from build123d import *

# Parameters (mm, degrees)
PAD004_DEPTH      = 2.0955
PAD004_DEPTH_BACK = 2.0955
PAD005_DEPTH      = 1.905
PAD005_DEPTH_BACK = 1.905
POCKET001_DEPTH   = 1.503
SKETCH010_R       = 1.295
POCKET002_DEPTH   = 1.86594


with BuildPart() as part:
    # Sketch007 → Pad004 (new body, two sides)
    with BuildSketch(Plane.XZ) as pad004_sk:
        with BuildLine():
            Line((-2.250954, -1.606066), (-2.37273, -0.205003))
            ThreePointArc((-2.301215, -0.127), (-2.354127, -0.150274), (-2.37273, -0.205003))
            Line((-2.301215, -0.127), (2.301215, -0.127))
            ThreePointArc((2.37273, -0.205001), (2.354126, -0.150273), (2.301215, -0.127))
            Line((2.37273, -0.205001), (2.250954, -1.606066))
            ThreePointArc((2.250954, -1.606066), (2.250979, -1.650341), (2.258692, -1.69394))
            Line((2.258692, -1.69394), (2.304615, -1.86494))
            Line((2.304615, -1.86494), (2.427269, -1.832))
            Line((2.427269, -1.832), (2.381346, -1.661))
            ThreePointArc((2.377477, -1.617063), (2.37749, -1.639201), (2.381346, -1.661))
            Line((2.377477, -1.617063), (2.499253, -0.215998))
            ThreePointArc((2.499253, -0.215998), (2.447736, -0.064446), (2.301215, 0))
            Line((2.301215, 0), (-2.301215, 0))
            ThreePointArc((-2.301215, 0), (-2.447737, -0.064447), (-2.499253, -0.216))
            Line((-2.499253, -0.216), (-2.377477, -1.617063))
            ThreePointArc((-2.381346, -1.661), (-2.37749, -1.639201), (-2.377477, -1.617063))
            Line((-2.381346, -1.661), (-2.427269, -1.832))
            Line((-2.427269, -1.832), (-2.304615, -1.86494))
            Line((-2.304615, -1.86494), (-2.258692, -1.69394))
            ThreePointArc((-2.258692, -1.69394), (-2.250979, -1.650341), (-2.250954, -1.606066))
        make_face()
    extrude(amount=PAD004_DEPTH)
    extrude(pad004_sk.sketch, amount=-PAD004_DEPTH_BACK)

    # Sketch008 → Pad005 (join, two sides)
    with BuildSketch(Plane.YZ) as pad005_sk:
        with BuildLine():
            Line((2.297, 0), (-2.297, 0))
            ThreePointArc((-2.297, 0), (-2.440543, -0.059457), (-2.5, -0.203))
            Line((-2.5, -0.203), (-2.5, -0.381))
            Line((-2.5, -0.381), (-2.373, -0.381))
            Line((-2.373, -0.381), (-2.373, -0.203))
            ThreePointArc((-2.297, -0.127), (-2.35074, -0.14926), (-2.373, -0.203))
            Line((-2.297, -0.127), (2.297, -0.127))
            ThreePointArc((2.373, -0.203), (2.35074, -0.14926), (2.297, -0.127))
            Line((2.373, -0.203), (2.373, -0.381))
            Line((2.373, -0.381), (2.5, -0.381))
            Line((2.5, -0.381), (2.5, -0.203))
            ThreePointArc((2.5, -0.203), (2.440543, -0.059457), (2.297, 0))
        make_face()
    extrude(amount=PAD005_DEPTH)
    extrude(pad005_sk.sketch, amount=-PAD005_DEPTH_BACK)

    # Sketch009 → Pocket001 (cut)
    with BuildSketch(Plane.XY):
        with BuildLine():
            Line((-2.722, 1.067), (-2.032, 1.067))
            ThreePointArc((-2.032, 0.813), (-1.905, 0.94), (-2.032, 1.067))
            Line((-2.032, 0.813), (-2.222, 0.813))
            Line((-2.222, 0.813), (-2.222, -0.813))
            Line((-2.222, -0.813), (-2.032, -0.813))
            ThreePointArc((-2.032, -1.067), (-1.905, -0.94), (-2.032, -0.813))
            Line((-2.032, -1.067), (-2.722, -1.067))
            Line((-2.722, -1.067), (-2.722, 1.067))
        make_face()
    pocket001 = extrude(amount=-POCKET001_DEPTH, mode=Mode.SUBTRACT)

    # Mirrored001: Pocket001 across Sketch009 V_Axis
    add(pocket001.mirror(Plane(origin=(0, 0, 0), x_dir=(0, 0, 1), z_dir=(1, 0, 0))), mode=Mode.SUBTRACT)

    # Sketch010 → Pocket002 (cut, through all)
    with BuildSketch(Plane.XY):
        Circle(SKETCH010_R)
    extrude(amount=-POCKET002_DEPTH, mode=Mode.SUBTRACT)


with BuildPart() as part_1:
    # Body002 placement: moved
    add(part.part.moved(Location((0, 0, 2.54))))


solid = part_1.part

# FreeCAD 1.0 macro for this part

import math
import FreeCAD as App
import Part
import Sketcher
from FreeCAD import Vector
Q = App.Units.Quantity

doc = App.newDocument("Part")
params = doc.addObject("Spreadsheet::Sheet", "Params")
for row, (alias, value) in enumerate([
    ("sketch1_radius", "0.0100002 in"),
    ("sketch1_radius2", "0.0100002 in"),
    ("sketch1_length", "0.005 in"),
    ("sketch1_length2", "0.005 in"),
    ("pad1_length", "0.0825 in"),
    ("pad1_length2", "0.0825 in"),
    ("sketch2_width", "0.005 in"),
    ("pad2_length", "0.075 in"),
    ("pad2_length2", "0.075 in"),
    ("sketch3_radius", "0.005 in"),
    ("pocket1_length", "1.503 mm"),
], start=1):
    params.set(f"A{row}", alias)
    params.set(f"B{row}", "=" + value)
    params.setAlias(f"B{row}", alias)

body = doc.addObject("PartDesign::Body", "Body")

# Sketch on XZ plane
sketch1 = doc.addObject("Sketcher::SketchObject", "Sketch")
body.addObject(sketch1)
sketch1.AttachmentSupport = (doc.XZ_Plane, [""])
sketch1.MapMode = "FlatFace"
sketch1.addGeometry(Part.LineSegment(Vector(-2.250954, -1.606066, 0), Vector(-2.37273, -0.205003, 0)), False)
sketch1.addGeometry(Part.ArcOfCircle(Part.Circle(Vector(-2.301214, -0.198786, 0), Vector(0, 0, 1), 0.071786), math.radians(90.001026), math.radians(184.968302)), False)
sketch1.addGeometry(Part.LineSegment(Vector(-2.301215, -0.127, 0), Vector(2.301215, -0.127, 0)), False)
sketch1.addGeometry(Part.ArcOfCircle(Part.Circle(Vector(2.301214, -0.198786, 0), Vector(0, 0, 1), 0.071786), math.radians(-4.966821), math.radians(89.998957)), False)
sketch1.addGeometry(Part.LineSegment(Vector(2.37273, -0.205001, 0), Vector(2.250954, -1.606066, 0)), False)
sketch1.addGeometry(Part.ArcOfCircle(Part.Circle(Vector(2.504004, -1.628061, 0), Vector(0, 0, 1), 0.254004), math.radians(175.03245), math.radians(195.032281)), False)
sketch1.addGeometry(Part.LineSegment(Vector(2.258692, -1.69394, 0), Vector(2.304615, -1.86494, 0)), False)
sketch1.addGeometry(Part.LineSegment(Vector(2.304615, -1.86494, 0), Vector(2.427269, -1.832, 0)), False)
sketch1.addGeometry(Part.LineSegment(Vector(2.427269, -1.832, 0), Vector(2.381346, -1.661, 0)), False)
sketch1.addGeometry(Part.ArcOfCircle(Part.Circle(Vector(2.504032, -1.628058, 0), Vector(0, 0, 1), 0.127032), math.radians(175.034792), math.radians(195.029939)), False)
sketch1.addGeometry(Part.LineSegment(Vector(2.377477, -1.617063, 0), Vector(2.499253, -0.215998, 0)), False)
sketch1.addGeometry(Part.ArcOfCircle(Part.Circle(Vector(2.301215, -0.198785, 0), Vector(0, 0, 1), 0.198785), math.radians(-4.967518), math.radians(89.999894)), False)
sketch1.addGeometry(Part.LineSegment(Vector(2.301215, 0, 0), Vector(-2.301215, 0, 0)), False)
sketch1.addGeometry(Part.ArcOfCircle(Part.Circle(Vector(-2.301215, -0.198785, 0), Vector(0, 0, 1), 0.198785), math.radians(90.0001), math.radians(184.968052)), False)
sketch1.addGeometry(Part.LineSegment(Vector(-2.499253, -0.216, 0), Vector(-2.377477, -1.617063, 0)), False)
sketch1.addGeometry(Part.ArcOfCircle(Part.Circle(Vector(-2.504032, -1.628058, 0), Vector(0, 0, 1), 0.127032), math.radians(-15.029939), math.radians(4.965208)), False)
sketch1.addGeometry(Part.LineSegment(Vector(-2.381346, -1.661, 0), Vector(-2.427269, -1.832, 0)), False)
sketch1.addGeometry(Part.LineSegment(Vector(-2.427269, -1.832, 0), Vector(-2.304615, -1.86494, 0)), False)
sketch1.addGeometry(Part.LineSegment(Vector(-2.304615, -1.86494, 0), Vector(-2.258692, -1.69394, 0)), False)
sketch1.addGeometry(Part.ArcOfCircle(Part.Circle(Vector(-2.504004, -1.628061, 0), Vector(0, 0, 1), 0.254004), math.radians(-15.032281), math.radians(4.96755)), False)
sketch1.addConstraint(Sketcher.Constraint("Coincident", 0, 2, 1, 2))
sketch1.addConstraint(Sketcher.Constraint("Coincident", 1, 1, 2, 1))
sketch1.addConstraint(Sketcher.Constraint("Coincident", 2, 2, 3, 2))
sketch1.addConstraint(Sketcher.Constraint("Coincident", 3, 1, 4, 1))
sketch1.addConstraint(Sketcher.Constraint("Coincident", 4, 2, 5, 1))
sketch1.addConstraint(Sketcher.Constraint("Coincident", 5, 2, 6, 1))
sketch1.addConstraint(Sketcher.Constraint("Coincident", 6, 2, 7, 1))
sketch1.addConstraint(Sketcher.Constraint("Coincident", 7, 2, 8, 1))
sketch1.addConstraint(Sketcher.Constraint("Coincident", 8, 2, 9, 2))
sketch1.addConstraint(Sketcher.Constraint("Coincident", 9, 1, 10, 1))
sketch1.addConstraint(Sketcher.Constraint("Coincident", 10, 2, 11, 1))
sketch1.addConstraint(Sketcher.Constraint("Coincident", 11, 2, 12, 1))
sketch1.addConstraint(Sketcher.Constraint("Coincident", 12, 2, 13, 1))
sketch1.addConstraint(Sketcher.Constraint("Coincident", 13, 2, 14, 1))
sketch1.addConstraint(Sketcher.Constraint("Coincident", 14, 2, 15, 2))
sketch1.addConstraint(Sketcher.Constraint("Coincident", 15, 1, 16, 1))
sketch1.addConstraint(Sketcher.Constraint("Coincident", 16, 2, 17, 1))
sketch1.addConstraint(Sketcher.Constraint("Coincident", 17, 2, 18, 1))
sketch1.addConstraint(Sketcher.Constraint("Coincident", 18, 2, 19, 1))
sketch1.addConstraint(Sketcher.Constraint("Coincident", 19, 2, 0, 1))
sketch1.addConstraint(Sketcher.Constraint("Horizontal", 2))
sketch1.addConstraint(Sketcher.Constraint("Horizontal", 12))
sketch1.addConstraint(Sketcher.Constraint("Coincident", 11, 3, 3, 3))
sketch1.addConstraint(Sketcher.Constraint("Coincident", 13, 3, 1, 3))
sketch1.addConstraint(Sketcher.Constraint("PointOnObject", 11, 2, -1))
sketch1.addConstraint(Sketcher.Constraint("Radius", 5, Q("0.0100002 in")))
sketch1.addConstraint(Sketcher.Constraint("Radius", 19, Q("0.0100002 in")))
sketch1.addConstraint(Sketcher.Constraint("Distance", 7, Q("0.005 in")))
sketch1.addConstraint(Sketcher.Constraint("Distance", 17, Q("0.005 in")))
sketch1.addConstraint(Sketcher.Constraint("DistanceY", 1, 1, -1, 1, Q("0.005 in")))
sketch1.addConstraint(Sketcher.Constraint("Radius", 9, Q("0.127032 mm")))
sketch1.addConstraint(Sketcher.Constraint("Radius", 15, Q("0.127032 mm")))
sketch1.addConstraint(Sketcher.Constraint("Radius", 1, Q("0.071786 mm")))
sketch1.addConstraint(Sketcher.Constraint("Radius", 3, Q("0.071786 mm")))
sketch1.addConstraint(Sketcher.Constraint("DistanceX", 2, 1, 2, 2, Q("4.60243 mm")))
sketch1.addConstraint(Sketcher.Constraint("DistanceX", 12, 2, 12, 1, Q("4.60243 mm")))
sketch1.addConstraint(Sketcher.Constraint("DistanceY", 3, 1, -1, 1, Q("0.205001 mm")))
sketch1.addConstraint(Sketcher.Constraint("DistanceY", 7, 2, -1, 1, Q("1.832 mm")))
sketch1.addConstraint(Sketcher.Constraint("DistanceY", 8, 2, -1, 1, Q("1.661 mm")))
sketch1.addConstraint(Sketcher.Constraint("DistanceY", 13, 2, -1, 1, Q("0.216 mm")))
sketch1.addConstraint(Sketcher.Constraint("DistanceY", 15, 1, -1, 1, Q("1.661 mm")))
sketch1.addConstraint(Sketcher.Constraint("DistanceY", 16, 2, -1, 1, Q("1.832 mm")))
sketch1.addConstraint(Sketcher.Constraint("DistanceX", 15, 3, 0, 2, Q("0.131302 mm")))
sketch1.addConstraint(Sketcher.Constraint("DistanceX", 3, 1, 9, 3, Q("0.131302 mm")))
sketch1.addConstraint(Sketcher.Constraint("DistanceY", 6, 2, 5, 2, Q("0.171 mm")))
sketch1.addConstraint(Sketcher.Constraint("DistanceY", 17, 2, 18, 2, Q("0.171 mm")))
sketch1.addConstraint(Sketcher.Constraint("Distance", 6, Q("0.177059 mm")))
sketch1.addConstraint(Sketcher.Constraint("Distance", 8, Q("0.177059 mm")))
sketch1.addConstraint(Sketcher.Constraint("Distance", 16, Q("0.177059 mm")))
sketch1.addConstraint(Sketcher.Constraint("Distance", 18, Q("0.177059 mm")))
sketch1.addConstraint(Sketcher.Constraint("DistanceY", 5, 3, -1, 1, Q("1.628061 mm")))
sketch1.addConstraint(Sketcher.Constraint("DistanceX", -1, 1, 9, 3, Q("2.504032 mm")))
sketch1.addConstraint(Sketcher.Constraint("DistanceX", 15, 3, -1, 1, Q("2.504032 mm")))
sketch1.addConstraint(Sketcher.Constraint("DistanceY", 19, 3, -1, 1, Q("1.628061 mm")))
sketch1.addConstraint(Sketcher.Constraint("DistanceY", 5, 2, -1, 1, Q("1.69394 mm")))
sketch1.addConstraint(Sketcher.Constraint("DistanceX", -1, 1, 7, 2, Q("2.427269 mm")))
sketch1.addConstraint(Sketcher.Constraint("DistanceX", 16, 2, -1, 1, Q("2.427269 mm")))
sketch1.addConstraint(Sketcher.Constraint("DistanceY", 17, 2, -1, 1, Q("1.86494 mm")))
sketch1.addConstraint(Sketcher.Constraint("DistanceX", 1, 3, 11, 3, Q("4.602428 mm")))
sketch1.addConstraint(Sketcher.Constraint("DistanceX", 19, 3, 1, 1, Q("0.202789 mm")))
sketch1.addConstraint(Sketcher.Constraint("DistanceX", 4, 2, 5, 3, Q("0.25305 mm")))
sketch1.addConstraint(Sketcher.Constraint("DistanceX", 9, 1, 8, 2, Q("0.003869 mm")))
sketch1.addConstraint(Sketcher.Constraint("DistanceX", 11, 3, 10, 2, Q("0.198038 mm")))
sketch1.addConstraint(Sketcher.Constraint("DistanceX", 19, 3, 12, 2, Q("0.202789 mm")))
sketch1.addConstraint(Sketcher.Constraint("DistanceY", 14, 2, 0, 2, Q("1.41206 mm")))
sketch1.addConstraint(Sketcher.Constraint("DistanceX", 15, 1, 19, 2, Q("0.130392 mm")))
sketch1.setExpression("Constraints[25]", "Params.sketch1_radius")
sketch1.setExpression("Constraints[26]", "Params.sketch1_radius2")
sketch1.setExpression("Constraints[27]", "Params.sketch1_length")
sketch1.setExpression("Constraints[28]", "Params.sketch1_length2")
pad1 = doc.addObject("PartDesign::Pad", "Pad")
body.addObject(pad1)
pad1.Profile = sketch1
pad1.Type = "TwoLengths"
pad1.setExpression("Length", "Params.pad1_length")
pad1.setExpression("Length2", "Params.pad1_length2")

# Sketch on YZ plane
sketch2 = doc.addObject("Sketcher::SketchObject", "Sketch001")
body.addObject(sketch2)
sketch2.AttachmentSupport = (doc.YZ_Plane, [""])
sketch2.MapMode = "FlatFace"
sketch2.addGeometry(Part.LineSegment(Vector(2.297, 0, 0), Vector(-2.297, 0, 0)), False)
sketch2.addGeometry(Part.ArcOfCircle(Part.Circle(Vector(-2.297001, -0.202999, 0), Vector(0, 0, 1), 0.202999), math.radians(89.999688), math.radians(180.000312)), False)
sketch2.addGeometry(Part.LineSegment(Vector(-2.5, -0.203, 0), Vector(-2.5, -0.381, 0)), False)
sketch2.addGeometry(Part.LineSegment(Vector(-2.5, -0.381, 0), Vector(-2.373, -0.381, 0)), False)
sketch2.addGeometry(Part.LineSegment(Vector(-2.373, -0.381, 0), Vector(-2.373, -0.203, 0)), False)
sketch2.addGeometry(Part.ArcOfCircle(Part.Circle(Vector(-2.297, -0.203, 0), Vector(0, 0, 1), 0.076), math.radians(90.000297), math.radians(179.999703)), False)
sketch2.addGeometry(Part.LineSegment(Vector(-2.297, -0.127, 0), Vector(2.297, -0.127, 0)), False)
sketch2.addGeometry(Part.ArcOfCircle(Part.Circle(Vector(2.297, -0.203, 0), Vector(0, 0, 1), 0.076), math.radians(0.000297), math.radians(89.999703)), False)
sketch2.addGeometry(Part.LineSegment(Vector(2.373, -0.203, 0), Vector(2.373, -0.381, 0)), False)
sketch2.addGeometry(Part.LineSegment(Vector(2.373, -0.381, 0), Vector(2.5, -0.381, 0)), False)
sketch2.addGeometry(Part.LineSegment(Vector(2.5, -0.381, 0), Vector(2.5, -0.203, 0)), False)
sketch2.addGeometry(Part.ArcOfCircle(Part.Circle(Vector(2.297001, -0.202999, 0), Vector(0, 0, 1), 0.202999), math.radians(-0.000312), math.radians(90.000312)), False)
sketch2.addConstraint(Sketcher.Constraint("Coincident", 0, 2, 1, 1))
sketch2.addConstraint(Sketcher.Constraint("Coincident", 1, 2, 2, 1))
sketch2.addConstraint(Sketcher.Constraint("Coincident", 2, 2, 3, 1))
sketch2.addConstraint(Sketcher.Constraint("Coincident", 3, 2, 4, 1))
sketch2.addConstraint(Sketcher.Constraint("Coincident", 4, 2, 5, 2))
sketch2.addConstraint(Sketcher.Constraint("Coincident", 5, 1, 6, 1))
sketch2.addConstraint(Sketcher.Constraint("Coincident", 6, 2, 7, 2))
sketch2.addConstraint(Sketcher.Constraint("Coincident", 7, 1, 8, 1))
sketch2.addConstraint(Sketcher.Constraint("Coincident", 8, 2, 9, 1))
sketch2.addConstraint(Sketcher.Constraint("Coincident", 9, 2, 10, 1))
sketch2.addConstraint(Sketcher.Constraint("Coincident", 10, 2, 11, 1))
sketch2.addConstraint(Sketcher.Constraint("Coincident", 11, 2, 0, 1))
sketch2.addConstraint(Sketcher.Constraint("Horizontal", 0))
sketch2.addConstraint(Sketcher.Constraint("Vertical", 2))
sketch2.addConstraint(Sketcher.Constraint("Horizontal", 3))
sketch2.addConstraint(Sketcher.Constraint("Vertical", 4))
sketch2.addConstraint(Sketcher.Constraint("Horizontal", 6))
sketch2.addConstraint(Sketcher.Constraint("Vertical", 8))
sketch2.addConstraint(Sketcher.Constraint("Horizontal", 9))
sketch2.addConstraint(Sketcher.Constraint("Vertical", 10))
sketch2.addConstraint(Sketcher.Constraint("Coincident", 5, 3, 1, 3))
sketch2.addConstraint(Sketcher.Constraint("Coincident", 11, 3, 7, 3))
sketch2.addConstraint(Sketcher.Constraint("Equal", 5, 7))
sketch2.addConstraint(Sketcher.Constraint("Symmetric", 0, 2, 11, 2, -1, 1))
sketch2.addConstraint(Sketcher.Constraint("Symmetric", 4, 2, 7, 1, -2))
sketch2.addConstraint(Sketcher.Constraint("Horizontal", 11, 3, 1, 2))
sketch2.addConstraint(Sketcher.Constraint("Horizontal", 1, 2, 4, 2))
sketch2.addConstraint(Sketcher.Constraint("Horizontal", 3, 2, 8, 2))
sketch2.addConstraint(Sketcher.Constraint("Horizontal", 7, 1, 10, 2))
sketch2.addConstraint(Sketcher.Constraint("Vertical", 5, 3, 0, 2))
sketch2.addConstraint(Sketcher.Constraint("Vertical", 0, 2, 5, 1))
sketch2.addConstraint(Sketcher.Constraint("Vertical", 11, 3, 6, 2))
sketch2.addConstraint(Sketcher.Constraint("DistanceX", 3, 1, 3, 2, Q("0.005 in")))
sketch2.addConstraint(Sketcher.Constraint("Radius", 1, Q("0.202999 mm")))
sketch2.addConstraint(Sketcher.Constraint("DistanceY", 8, 2, 6, 2, Q("0.01 in")))
sketch2.addConstraint(Sketcher.Constraint("DistanceX", 0, 2, 0, 1, Q("4.594 mm")))
sketch2.setExpression("Constraints[32]", "Params.sketch2_width")
pad2 = doc.addObject("PartDesign::Pad", "Pad001")
body.addObject(pad2)
pad2.Profile = sketch2
pad2.Type = "TwoLengths"
pad2.setExpression("Length", "Params.pad2_length")
pad2.setExpression("Length2", "Params.pad2_length2")

# Sketch on XY plane
sketch3 = doc.addObject("Sketcher::SketchObject", "Sketch002")
body.addObject(sketch3)
sketch3.AttachmentSupport = (doc.XY_Plane, [""])
sketch3.MapMode = "FlatFace"
sketch3.addGeometry(Part.LineSegment(Vector(-2.032, 1.067, 0), Vector(-2.722, 1.067, 0)), False)
sketch3.addGeometry(Part.LineSegment(Vector(-2.722, 1.067, 0), Vector(-2.722, -1.067, 0)), False)
sketch3.addGeometry(Part.LineSegment(Vector(-2.722, -1.067, 0), Vector(-2.032, -1.067, 0)), False)
sketch3.addGeometry(Part.ArcOfCircle(Part.Circle(Vector(-2.032, -0.94, 0), Vector(0, 0, 1), 0.127), math.radians(-90), math.radians(90)), False)
sketch3.addGeometry(Part.LineSegment(Vector(-2.032, -0.813, 0), Vector(-2.222, -0.813, 0)), False)
sketch3.addGeometry(Part.LineSegment(Vector(-2.222, -0.813, 0), Vector(-2.222, 0.813, 0)), False)
sketch3.addGeometry(Part.LineSegment(Vector(-2.222, 0.813, 0), Vector(-2.032, 0.813, 0)), False)
sketch3.addGeometry(Part.ArcOfCircle(Part.Circle(Vector(-2.032, 0.94, 0), Vector(0, 0, 1), 0.127), math.radians(-90), math.radians(90)), False)
sketch3.addConstraint(Sketcher.Constraint("Coincident", 0, 2, 1, 1))
sketch3.addConstraint(Sketcher.Constraint("Coincident", 1, 2, 2, 1))
sketch3.addConstraint(Sketcher.Constraint("Tangent", 2, 2, 3, 1))
sketch3.addConstraint(Sketcher.Constraint("Tangent", 3, 2, 4, 1))
sketch3.addConstraint(Sketcher.Constraint("Coincident", 4, 2, 5, 1))
sketch3.addConstraint(Sketcher.Constraint("Coincident", 5, 2, 6, 1))
sketch3.addConstraint(Sketcher.Constraint("Tangent", 6, 2, 7, 1))
sketch3.addConstraint(Sketcher.Constraint("Tangent", 7, 2, 0, 1))
sketch3.addConstraint(Sketcher.Constraint("Horizontal", 0))
sketch3.addConstraint(Sketcher.Constraint("Vertical", 1))
sketch3.addConstraint(Sketcher.Constraint("Horizontal", 2))
sketch3.addConstraint(Sketcher.Constraint("Horizontal", 4))
sketch3.addConstraint(Sketcher.Constraint("Vertical", 5))
sketch3.addConstraint(Sketcher.Constraint("Horizontal", 6))
sketch3.addConstraint(Sketcher.Constraint("Equal", 3, 7))
sketch3.addConstraint(Sketcher.Constraint("Symmetric", 3, 3, 7, 3, -1))
sketch3.addConstraint(Sketcher.Constraint("Radius", 3, Q("0.005 in")))
sketch3.addConstraint(Sketcher.Constraint("DistanceX", 3, 3, -1, 1, Q("0.08 in")))
sketch3.addConstraint(Sketcher.Constraint("DistanceX", 0, 2, 0, 1, Q("0.69 mm")))
sketch3.addConstraint(Sketcher.Constraint("DistanceX", 4, 2, 4, 1, Q("0.19 mm")))
sketch3.addConstraint(Sketcher.Constraint("DistanceY", 1, 2, 1, 1, Q("2.134 mm")))
sketch3.setExpression("Constraints[16]", "Params.sketch3_radius")
pocket1 = doc.addObject("PartDesign::Pocket", "Pocket")
body.addObject(pocket1)
pocket1.Profile = sketch3
pocket1.setExpression("Length", "Params.pocket1_length")
doc.recompute()

mirrored = doc.addObject("PartDesign::Mirrored", "Mirrored")
body.addObject(mirrored)
mirrored.Originals = [pocket1]
mirrored.MirrorPlane = (doc.YZ_Plane, [""])
body.Tip = mirrored

# Sketch on XY plane
sketch4 = doc.addObject("Sketcher::SketchObject", "Sketch003")
body.addObject(sketch4)
sketch4.AttachmentSupport = (doc.XY_Plane, [""])
sketch4.MapMode = "FlatFace"
sketch4.addGeometry(Part.Circle(Vector(0, 0, 0), Vector(0, 0, 1), 1.295), False)
sketch4.addConstraint(Sketcher.Constraint("Coincident", 0, 3, -1, 1))
sketch4.addConstraint(Sketcher.Constraint("Diameter", 0, Q("2.59 mm")))
pocket2 = doc.addObject("PartDesign::Pocket", "Pocket001")
body.addObject(pocket2)
pocket2.Profile = sketch4
pocket2.Type = "ThroughAll"
body2 = doc.addObject("PartDesign::Body", "Body001")
doc.recompute()

body.Placement = App.Placement(Vector(0, 0, 2.54), App.Rotation(Vector(0, 0, 1), 0))
boolean = doc.addObject("PartDesign::Boolean", "Boolean")
body2.addObject(boolean)
boolean.Type = "Fuse"
boolean.addObjects([body])

doc.recompute()
